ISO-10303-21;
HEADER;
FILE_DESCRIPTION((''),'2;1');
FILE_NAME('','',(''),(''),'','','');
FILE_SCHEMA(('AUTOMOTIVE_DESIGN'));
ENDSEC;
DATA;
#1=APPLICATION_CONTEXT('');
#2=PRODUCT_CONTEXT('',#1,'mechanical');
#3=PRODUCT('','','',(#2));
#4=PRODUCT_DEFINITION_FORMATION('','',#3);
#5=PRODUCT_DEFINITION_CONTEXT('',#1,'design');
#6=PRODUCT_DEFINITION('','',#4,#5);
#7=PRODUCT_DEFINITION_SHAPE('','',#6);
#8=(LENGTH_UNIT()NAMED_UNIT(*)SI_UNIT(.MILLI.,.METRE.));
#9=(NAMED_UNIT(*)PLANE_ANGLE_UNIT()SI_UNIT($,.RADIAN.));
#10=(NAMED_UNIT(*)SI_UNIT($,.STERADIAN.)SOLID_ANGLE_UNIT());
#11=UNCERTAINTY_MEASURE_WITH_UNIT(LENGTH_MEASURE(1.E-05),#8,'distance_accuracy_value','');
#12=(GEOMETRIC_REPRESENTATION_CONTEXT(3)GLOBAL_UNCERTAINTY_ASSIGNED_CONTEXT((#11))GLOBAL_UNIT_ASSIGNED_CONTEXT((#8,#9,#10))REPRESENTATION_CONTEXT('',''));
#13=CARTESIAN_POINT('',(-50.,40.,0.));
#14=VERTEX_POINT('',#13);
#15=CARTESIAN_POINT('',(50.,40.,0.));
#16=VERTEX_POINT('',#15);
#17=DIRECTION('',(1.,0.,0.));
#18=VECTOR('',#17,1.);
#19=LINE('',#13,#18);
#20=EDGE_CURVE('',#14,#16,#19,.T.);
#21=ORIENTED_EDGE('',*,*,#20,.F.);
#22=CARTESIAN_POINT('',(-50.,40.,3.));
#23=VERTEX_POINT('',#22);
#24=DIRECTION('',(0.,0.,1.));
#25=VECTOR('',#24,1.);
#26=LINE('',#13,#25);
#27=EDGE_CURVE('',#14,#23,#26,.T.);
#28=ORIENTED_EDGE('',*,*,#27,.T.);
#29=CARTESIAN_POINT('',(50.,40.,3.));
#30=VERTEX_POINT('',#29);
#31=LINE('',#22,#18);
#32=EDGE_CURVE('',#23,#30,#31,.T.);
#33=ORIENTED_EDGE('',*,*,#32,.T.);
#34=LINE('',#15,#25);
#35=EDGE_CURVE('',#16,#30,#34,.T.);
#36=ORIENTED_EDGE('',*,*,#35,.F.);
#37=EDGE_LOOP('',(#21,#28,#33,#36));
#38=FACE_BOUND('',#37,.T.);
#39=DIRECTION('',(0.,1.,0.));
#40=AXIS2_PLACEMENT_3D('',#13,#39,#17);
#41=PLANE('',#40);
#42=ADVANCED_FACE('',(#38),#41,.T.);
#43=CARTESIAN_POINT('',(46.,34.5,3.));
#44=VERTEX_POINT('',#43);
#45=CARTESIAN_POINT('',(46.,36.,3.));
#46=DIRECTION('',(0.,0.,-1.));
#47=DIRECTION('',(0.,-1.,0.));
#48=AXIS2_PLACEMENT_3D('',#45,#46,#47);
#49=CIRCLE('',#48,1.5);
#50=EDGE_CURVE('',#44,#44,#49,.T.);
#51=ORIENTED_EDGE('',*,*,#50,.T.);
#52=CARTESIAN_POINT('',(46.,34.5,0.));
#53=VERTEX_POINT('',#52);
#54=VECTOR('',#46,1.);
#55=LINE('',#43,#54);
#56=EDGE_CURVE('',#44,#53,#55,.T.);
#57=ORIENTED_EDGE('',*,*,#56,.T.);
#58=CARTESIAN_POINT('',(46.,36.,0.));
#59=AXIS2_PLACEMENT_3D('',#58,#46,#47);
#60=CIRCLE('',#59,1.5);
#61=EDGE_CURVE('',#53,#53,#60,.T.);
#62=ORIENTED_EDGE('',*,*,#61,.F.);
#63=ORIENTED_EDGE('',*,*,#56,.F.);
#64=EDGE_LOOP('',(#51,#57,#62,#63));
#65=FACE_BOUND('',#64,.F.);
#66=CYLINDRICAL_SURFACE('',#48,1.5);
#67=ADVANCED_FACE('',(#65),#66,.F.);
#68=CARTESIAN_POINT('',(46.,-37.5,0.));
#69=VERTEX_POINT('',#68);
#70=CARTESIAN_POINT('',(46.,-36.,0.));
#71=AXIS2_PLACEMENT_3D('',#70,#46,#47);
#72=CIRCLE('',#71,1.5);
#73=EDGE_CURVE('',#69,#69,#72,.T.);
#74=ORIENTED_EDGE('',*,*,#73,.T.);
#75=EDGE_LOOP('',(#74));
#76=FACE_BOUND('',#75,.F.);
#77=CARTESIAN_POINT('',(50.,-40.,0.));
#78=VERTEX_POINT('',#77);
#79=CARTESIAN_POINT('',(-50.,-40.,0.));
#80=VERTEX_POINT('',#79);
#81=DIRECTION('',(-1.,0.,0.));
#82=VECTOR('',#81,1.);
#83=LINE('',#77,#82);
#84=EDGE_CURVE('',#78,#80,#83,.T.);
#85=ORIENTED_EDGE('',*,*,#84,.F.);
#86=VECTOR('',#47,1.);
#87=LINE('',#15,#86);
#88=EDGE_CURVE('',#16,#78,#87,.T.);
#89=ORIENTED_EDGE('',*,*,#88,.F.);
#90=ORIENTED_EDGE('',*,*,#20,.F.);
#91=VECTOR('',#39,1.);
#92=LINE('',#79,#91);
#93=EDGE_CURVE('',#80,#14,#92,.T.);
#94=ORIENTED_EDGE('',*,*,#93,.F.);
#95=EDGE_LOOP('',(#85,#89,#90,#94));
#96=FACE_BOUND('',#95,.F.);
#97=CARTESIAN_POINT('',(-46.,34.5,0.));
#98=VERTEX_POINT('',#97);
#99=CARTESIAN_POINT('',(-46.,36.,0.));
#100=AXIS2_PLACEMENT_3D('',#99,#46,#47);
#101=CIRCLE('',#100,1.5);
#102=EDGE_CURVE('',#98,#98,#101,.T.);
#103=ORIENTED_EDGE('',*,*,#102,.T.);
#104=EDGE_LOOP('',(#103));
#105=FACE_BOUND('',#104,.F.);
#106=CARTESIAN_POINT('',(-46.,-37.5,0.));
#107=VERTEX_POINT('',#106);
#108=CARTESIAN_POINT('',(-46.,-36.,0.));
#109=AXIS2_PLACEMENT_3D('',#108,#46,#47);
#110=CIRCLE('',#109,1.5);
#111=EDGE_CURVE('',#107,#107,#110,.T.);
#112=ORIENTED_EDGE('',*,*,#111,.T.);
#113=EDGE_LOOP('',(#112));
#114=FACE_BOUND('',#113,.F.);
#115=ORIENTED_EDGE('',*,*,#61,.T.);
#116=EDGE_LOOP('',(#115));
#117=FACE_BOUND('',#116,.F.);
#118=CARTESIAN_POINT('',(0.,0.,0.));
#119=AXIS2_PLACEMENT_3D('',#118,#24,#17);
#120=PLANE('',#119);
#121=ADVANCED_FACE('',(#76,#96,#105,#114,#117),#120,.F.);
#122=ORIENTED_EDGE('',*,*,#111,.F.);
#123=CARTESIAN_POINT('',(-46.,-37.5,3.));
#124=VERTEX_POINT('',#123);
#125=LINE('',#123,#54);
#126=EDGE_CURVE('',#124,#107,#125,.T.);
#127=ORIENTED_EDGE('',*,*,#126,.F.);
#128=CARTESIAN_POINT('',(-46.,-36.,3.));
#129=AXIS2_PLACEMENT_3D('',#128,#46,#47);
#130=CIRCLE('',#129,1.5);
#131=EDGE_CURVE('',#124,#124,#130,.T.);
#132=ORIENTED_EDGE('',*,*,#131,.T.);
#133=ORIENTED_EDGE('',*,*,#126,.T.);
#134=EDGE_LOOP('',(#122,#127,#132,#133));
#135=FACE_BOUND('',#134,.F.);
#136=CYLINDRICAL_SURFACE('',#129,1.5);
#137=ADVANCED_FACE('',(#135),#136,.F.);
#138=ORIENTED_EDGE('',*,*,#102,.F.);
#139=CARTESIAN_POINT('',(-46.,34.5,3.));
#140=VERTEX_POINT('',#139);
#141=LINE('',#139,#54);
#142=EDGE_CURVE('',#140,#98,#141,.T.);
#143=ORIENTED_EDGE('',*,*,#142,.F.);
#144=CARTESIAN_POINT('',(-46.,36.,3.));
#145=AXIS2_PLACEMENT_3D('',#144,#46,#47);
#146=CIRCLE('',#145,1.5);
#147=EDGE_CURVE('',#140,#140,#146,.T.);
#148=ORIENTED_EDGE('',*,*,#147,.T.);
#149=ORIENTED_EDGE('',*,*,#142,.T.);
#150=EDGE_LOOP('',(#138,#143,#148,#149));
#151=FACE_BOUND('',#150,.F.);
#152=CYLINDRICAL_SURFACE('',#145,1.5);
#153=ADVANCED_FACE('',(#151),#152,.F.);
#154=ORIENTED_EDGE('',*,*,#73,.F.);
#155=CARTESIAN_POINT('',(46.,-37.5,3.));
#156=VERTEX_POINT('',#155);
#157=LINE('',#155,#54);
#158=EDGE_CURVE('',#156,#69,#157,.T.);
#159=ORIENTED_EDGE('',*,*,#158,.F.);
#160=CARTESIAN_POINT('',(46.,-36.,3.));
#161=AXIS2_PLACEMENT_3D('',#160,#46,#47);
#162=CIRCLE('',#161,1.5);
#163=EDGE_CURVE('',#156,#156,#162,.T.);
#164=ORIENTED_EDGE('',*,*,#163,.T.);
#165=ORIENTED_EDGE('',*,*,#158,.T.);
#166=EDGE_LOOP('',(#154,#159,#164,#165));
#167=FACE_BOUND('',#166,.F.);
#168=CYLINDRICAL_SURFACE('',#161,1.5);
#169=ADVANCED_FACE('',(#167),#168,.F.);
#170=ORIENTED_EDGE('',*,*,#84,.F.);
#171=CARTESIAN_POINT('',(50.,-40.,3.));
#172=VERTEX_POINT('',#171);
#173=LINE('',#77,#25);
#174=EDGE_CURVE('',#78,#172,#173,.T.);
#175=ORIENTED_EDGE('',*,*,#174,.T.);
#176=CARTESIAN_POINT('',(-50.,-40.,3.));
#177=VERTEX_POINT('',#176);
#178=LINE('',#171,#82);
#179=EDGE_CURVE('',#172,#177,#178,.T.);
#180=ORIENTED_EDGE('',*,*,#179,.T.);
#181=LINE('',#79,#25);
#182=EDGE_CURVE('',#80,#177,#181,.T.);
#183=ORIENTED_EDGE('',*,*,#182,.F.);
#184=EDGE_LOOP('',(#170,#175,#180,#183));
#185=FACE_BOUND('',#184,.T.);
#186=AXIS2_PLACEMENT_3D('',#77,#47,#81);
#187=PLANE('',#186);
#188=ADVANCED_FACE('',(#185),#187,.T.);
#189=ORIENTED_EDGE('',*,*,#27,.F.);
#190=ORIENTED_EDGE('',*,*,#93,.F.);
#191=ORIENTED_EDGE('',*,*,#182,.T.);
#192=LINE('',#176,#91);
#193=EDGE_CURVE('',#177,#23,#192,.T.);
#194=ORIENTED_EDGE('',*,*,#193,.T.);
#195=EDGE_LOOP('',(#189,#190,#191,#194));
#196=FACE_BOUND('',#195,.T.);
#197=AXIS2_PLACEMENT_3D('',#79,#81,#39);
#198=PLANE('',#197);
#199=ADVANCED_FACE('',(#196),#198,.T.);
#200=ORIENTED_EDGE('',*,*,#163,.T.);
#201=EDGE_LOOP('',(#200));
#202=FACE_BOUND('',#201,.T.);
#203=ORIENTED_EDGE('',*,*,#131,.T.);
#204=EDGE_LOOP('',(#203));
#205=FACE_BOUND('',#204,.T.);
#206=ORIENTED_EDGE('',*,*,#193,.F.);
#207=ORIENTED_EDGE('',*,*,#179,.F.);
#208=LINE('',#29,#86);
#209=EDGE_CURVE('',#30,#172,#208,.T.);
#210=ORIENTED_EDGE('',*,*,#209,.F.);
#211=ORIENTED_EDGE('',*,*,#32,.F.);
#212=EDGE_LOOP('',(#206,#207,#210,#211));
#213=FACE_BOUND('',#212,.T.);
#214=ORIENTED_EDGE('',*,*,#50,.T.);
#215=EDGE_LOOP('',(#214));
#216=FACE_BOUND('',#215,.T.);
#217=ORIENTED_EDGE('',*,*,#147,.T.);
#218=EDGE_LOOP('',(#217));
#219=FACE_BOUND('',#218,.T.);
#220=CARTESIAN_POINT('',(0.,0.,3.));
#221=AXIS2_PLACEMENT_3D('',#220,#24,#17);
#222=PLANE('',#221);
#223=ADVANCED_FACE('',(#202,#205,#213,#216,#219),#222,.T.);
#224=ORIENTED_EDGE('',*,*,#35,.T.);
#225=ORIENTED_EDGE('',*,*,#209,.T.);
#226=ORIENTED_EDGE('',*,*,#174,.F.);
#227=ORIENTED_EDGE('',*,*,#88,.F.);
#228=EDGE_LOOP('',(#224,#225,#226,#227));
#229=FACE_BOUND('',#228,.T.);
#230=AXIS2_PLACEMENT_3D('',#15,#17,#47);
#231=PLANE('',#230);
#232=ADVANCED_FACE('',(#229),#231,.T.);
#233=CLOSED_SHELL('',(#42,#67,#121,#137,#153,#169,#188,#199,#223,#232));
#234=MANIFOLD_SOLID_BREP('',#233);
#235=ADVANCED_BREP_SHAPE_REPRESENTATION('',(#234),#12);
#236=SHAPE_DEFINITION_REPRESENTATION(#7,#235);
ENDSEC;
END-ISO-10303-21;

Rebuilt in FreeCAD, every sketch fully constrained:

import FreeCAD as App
import Part
import Sketcher
Q = App.Units.Quantity


def add_polygon(sketch, points):
    """Adds a closed chain of lines whose ends are joined by coincident constraints."""
    first, n = sketch.GeometryCount, len(points)
    for a, b in zip(points, points[1:] + points[:1]):
        sketch.addGeometry(Part.LineSegment(App.Vector(*a, 0), App.Vector(*b, 0)), False)
    for i in range(n):
        sketch.addConstraint(Sketcher.Constraint("Coincident", first + i, 2, first + (i + 1) % n, 1))

doc = App.newDocument("Part")
params = doc.addObject("Spreadsheet::Sheet", "Params")
for row, (alias, value) in enumerate([
    ("sketch1_width", "3.937 in"),
    ("pad1_length", "0.1181102 in"),
    ("hole_diameter", "0.1181102 in"),
], start=1):
    params.set(f"A{row}", alias)
    params.set(f"B{row}", "=" + value)
    params.setAlias(f"B{row}", alias)

body = doc.addObject("PartDesign::Body", "Body")

# Sketch on XY plane
sketch1 = body.newObject("Sketcher::SketchObject", "Sketch")
sketch1.AttachmentSupport = (doc.getObject("XY_Plane"), [""])
sketch1.MapMode = "FlatFace"
add_polygon(sketch1, [(50, 40), (-50, 40), (-50, -40), (50, -40)])  # lines 0-3
sketch1.addConstraint([
    Sketcher.Constraint("Horizontal", 0),
    Sketcher.Constraint("Vertical", 1),
    Sketcher.Constraint("Horizontal", 2),
    Sketcher.Constraint("Vertical", 3),
    Sketcher.Constraint("Symmetric", 0, 2, 2, 2, -1, 1),
    Sketcher.Constraint("DistanceX", 0, 2, 0, 1, Q("3.937 in")),
    Sketcher.Constraint("DistanceY", 1, 2, 1, 1, Q("3.1496 in")),
])
sketch1.setExpression("Constraints[9]", "Params.sketch1_width")
pad1 = body.newObject("PartDesign::Pad", "Pad")
pad1.Profile = sketch1
pad1.setExpression("Length", "Params.pad1_length")

# Sketch on XY plane
sketch2 = body.newObject("Sketcher::SketchObject", "Sketch001")
sketch2.AttachmentSupport = (doc.getObject("XY_Plane"), [""])
sketch2.MapMode = "FlatFace"
sketch2.AttachmentOffset = App.Placement(App.Vector(0, 0, 0.1181102 * 25.4), App.Rotation())
sketch2.addGeometry([
    Part.Circle(App.Vector(-46, 36, 0), App.Vector(0, 0, 1), 1.5),
    Part.Circle(App.Vector(-46, -36, 0), App.Vector(0, 0, 1), 1.5),
    Part.Circle(App.Vector(46, -36, 0), App.Vector(0, 0, 1), 1.5),
    Part.Circle(App.Vector(46, 36, 0), App.Vector(0, 0, 1), 1.5),
], False)
sketch2.addConstraint([
    Sketcher.Constraint("Equal", 0, 1),
    Sketcher.Constraint("Equal", 1, 2),
    Sketcher.Constraint("Equal", 2, 3),
    Sketcher.Constraint("Symmetric", 0, 3, 2, 3, -1, 1),
    Sketcher.Constraint("Symmetric", 1, 3, 3, 3, -1, 1),
    Sketcher.Constraint("Symmetric", 1, 3, 2, 3, -2),
    Sketcher.Constraint("Diameter", 0, Q("0.1181 in")),
    Sketcher.Constraint("DistanceX", 0, 3, -1, 1, Q("46 mm")),
    Sketcher.Constraint("DistanceY", -1, 1, 0, 3, Q("36 mm")),
])
doc.recompute()
hole = body.newObject("PartDesign::Hole", "Hole")
hole.Profile = sketch2
hole.ThreadType = "None"
hole.setExpression("Diameter", "Params.hole_diameter")
hole.DepthType = "ThroughAll"

doc.recompute()
